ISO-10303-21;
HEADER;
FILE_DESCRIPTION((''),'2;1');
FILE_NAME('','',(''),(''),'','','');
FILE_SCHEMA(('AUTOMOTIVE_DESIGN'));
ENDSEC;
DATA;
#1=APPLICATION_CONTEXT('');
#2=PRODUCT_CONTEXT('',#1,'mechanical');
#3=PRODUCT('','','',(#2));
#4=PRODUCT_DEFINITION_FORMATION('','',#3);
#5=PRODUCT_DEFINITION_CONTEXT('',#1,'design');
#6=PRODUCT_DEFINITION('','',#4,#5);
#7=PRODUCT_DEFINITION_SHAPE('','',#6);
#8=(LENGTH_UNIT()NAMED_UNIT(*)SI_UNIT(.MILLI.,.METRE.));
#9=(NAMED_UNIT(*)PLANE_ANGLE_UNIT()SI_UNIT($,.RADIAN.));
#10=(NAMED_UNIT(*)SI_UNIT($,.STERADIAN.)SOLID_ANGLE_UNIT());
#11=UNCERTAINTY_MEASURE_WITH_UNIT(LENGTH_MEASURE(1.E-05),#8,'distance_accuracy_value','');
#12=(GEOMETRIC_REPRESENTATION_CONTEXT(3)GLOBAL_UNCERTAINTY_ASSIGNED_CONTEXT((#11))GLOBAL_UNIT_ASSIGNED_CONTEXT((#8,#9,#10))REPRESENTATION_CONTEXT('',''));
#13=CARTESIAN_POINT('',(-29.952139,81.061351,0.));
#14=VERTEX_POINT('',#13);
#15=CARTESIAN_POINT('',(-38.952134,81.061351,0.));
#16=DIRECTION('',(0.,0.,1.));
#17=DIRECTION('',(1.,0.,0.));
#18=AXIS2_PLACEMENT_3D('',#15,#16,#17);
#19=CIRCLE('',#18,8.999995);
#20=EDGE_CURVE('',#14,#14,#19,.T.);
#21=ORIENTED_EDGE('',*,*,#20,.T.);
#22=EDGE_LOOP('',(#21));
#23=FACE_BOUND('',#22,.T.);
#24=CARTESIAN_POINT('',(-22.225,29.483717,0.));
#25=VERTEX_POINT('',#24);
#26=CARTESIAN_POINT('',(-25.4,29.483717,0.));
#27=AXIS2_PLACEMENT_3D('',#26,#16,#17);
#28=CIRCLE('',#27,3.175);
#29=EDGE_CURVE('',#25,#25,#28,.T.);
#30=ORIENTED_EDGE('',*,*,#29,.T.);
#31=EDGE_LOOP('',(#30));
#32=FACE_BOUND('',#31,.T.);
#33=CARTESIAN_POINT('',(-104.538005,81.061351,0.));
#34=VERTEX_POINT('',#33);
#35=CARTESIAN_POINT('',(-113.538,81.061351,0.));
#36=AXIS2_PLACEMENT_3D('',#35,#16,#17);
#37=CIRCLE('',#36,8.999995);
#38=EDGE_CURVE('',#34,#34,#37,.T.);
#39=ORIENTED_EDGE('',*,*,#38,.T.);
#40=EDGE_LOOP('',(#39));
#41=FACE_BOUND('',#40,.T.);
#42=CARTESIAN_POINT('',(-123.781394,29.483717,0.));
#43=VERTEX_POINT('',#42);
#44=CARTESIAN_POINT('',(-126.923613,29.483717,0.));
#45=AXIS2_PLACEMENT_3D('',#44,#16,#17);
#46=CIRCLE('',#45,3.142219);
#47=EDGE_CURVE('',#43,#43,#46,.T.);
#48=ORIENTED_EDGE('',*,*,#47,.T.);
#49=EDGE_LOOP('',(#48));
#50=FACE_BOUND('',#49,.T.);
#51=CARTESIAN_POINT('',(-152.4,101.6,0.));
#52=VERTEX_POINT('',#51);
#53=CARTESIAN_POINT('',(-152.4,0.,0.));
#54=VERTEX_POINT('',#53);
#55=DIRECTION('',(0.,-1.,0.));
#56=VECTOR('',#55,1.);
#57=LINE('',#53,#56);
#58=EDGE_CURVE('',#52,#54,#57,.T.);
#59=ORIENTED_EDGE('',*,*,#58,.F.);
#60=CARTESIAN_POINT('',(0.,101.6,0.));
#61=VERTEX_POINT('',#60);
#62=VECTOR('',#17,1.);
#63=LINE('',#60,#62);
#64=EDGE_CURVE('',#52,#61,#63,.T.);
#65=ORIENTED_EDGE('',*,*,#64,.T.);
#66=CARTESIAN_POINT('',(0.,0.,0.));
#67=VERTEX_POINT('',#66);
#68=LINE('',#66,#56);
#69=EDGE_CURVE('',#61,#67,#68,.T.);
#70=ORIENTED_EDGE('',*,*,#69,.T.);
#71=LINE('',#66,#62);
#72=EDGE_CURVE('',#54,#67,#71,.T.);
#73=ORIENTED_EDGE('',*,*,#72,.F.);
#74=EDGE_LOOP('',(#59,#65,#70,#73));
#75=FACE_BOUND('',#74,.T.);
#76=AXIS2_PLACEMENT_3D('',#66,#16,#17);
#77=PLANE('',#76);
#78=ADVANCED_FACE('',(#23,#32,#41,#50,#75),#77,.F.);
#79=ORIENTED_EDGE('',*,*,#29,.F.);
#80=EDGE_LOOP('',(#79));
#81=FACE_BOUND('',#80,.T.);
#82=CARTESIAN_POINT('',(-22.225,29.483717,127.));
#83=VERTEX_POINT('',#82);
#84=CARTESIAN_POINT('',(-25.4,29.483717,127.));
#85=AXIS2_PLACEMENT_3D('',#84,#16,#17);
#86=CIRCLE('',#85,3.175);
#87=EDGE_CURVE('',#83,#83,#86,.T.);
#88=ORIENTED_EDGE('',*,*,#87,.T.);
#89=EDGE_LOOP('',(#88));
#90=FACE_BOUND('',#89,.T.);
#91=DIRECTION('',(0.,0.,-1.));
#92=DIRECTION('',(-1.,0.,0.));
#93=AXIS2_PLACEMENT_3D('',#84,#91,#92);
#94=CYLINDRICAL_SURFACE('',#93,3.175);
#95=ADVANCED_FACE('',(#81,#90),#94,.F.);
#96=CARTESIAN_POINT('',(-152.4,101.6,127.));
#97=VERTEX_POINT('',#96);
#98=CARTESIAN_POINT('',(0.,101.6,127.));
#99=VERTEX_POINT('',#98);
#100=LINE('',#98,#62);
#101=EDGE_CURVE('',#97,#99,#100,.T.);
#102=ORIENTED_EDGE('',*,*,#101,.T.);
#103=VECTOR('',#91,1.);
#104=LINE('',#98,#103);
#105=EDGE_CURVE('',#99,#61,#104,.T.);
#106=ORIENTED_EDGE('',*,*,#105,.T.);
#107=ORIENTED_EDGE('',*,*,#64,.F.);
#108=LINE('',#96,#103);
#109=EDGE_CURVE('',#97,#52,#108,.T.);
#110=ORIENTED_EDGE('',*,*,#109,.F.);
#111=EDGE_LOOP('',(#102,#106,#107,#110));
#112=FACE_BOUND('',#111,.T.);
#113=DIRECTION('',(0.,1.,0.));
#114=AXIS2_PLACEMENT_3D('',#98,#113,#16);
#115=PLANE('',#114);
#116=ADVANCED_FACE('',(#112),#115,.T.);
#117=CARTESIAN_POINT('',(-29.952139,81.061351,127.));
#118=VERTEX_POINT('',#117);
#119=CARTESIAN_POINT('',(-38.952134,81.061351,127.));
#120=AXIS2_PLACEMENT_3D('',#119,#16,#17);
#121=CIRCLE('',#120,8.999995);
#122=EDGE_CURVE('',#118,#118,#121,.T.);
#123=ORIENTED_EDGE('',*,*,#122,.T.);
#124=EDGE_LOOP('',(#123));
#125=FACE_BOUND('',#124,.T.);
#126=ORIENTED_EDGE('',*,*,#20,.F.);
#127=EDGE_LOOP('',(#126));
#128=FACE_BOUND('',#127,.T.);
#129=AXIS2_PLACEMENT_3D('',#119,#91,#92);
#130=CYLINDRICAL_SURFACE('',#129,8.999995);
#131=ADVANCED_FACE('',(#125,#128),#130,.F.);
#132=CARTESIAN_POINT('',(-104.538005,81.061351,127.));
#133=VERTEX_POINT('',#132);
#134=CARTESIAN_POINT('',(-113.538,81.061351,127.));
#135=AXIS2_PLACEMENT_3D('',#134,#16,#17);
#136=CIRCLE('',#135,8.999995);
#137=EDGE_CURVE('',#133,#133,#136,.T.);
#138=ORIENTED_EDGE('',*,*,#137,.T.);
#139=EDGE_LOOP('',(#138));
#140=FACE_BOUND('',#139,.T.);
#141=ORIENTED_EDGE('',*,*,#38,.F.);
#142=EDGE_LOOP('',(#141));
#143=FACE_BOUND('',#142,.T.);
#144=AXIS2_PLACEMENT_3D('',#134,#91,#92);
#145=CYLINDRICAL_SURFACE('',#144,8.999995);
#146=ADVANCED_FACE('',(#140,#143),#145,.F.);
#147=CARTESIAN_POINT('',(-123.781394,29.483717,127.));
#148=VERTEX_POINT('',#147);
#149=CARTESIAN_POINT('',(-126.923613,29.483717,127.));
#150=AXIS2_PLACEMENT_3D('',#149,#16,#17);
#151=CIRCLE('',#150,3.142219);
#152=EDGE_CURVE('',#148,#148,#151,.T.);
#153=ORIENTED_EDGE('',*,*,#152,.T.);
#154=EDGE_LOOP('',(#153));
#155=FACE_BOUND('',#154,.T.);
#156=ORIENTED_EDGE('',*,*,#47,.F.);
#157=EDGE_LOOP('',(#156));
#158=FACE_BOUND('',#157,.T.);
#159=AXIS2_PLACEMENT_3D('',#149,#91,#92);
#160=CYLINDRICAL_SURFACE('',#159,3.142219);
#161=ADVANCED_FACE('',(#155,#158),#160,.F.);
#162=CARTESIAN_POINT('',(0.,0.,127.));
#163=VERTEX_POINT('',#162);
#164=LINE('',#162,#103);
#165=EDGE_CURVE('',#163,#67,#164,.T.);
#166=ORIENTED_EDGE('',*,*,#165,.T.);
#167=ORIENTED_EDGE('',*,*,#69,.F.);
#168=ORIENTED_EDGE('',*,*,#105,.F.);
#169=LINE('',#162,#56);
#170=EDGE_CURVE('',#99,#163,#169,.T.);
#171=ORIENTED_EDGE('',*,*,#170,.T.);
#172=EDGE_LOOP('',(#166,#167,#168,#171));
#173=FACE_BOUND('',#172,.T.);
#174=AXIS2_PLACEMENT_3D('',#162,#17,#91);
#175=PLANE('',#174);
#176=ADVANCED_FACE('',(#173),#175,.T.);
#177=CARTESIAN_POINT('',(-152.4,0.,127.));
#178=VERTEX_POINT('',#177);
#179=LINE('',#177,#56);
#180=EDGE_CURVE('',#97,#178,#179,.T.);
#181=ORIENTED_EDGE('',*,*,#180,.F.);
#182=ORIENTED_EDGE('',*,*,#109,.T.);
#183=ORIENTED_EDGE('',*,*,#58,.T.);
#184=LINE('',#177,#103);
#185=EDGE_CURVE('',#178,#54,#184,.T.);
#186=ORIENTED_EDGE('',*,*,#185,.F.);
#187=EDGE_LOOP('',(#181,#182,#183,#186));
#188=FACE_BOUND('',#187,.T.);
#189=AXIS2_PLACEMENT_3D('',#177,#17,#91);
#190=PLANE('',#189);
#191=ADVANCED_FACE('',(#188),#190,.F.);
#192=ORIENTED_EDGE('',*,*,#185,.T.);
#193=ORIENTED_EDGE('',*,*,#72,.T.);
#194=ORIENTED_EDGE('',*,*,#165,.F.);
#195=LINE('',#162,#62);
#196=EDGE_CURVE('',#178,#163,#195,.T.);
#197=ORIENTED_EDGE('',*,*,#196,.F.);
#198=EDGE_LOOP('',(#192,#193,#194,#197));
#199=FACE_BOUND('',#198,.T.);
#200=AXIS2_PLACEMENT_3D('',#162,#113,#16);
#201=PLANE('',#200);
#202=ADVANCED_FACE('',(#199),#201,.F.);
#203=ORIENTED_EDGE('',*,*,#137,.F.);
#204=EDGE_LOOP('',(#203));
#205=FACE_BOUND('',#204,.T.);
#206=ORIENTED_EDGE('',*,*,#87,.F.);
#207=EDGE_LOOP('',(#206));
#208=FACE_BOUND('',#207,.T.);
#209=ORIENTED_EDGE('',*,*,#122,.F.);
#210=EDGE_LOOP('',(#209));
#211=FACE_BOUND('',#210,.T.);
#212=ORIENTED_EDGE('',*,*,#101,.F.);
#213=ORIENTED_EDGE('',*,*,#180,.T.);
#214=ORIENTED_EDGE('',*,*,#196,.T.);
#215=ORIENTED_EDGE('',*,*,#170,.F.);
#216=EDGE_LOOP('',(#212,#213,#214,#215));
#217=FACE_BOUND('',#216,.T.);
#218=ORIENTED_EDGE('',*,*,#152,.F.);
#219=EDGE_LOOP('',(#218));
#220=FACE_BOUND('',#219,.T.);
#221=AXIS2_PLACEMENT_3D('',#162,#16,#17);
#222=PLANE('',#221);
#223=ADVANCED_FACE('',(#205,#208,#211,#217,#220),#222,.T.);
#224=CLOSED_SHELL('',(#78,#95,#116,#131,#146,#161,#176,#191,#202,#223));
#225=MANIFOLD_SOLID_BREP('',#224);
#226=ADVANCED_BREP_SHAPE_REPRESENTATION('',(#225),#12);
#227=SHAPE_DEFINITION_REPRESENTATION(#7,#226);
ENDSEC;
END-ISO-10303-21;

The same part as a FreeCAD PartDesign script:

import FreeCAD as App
import Part
import Sketcher
from FreeCAD import Vector
Q = App.Units.Quantity

doc = App.newDocument("Part")
params = doc.addObject("Spreadsheet::Sheet", "Params")
for row, (alias, value) in enumerate([
    ("sketch1_diameter", "0.25 in"),
    ("sketch1_width", "6 in"),
    ("sketch1_height", "4 in"),
    ("pad1_length", "5 in"),
], start=1):
    params.set(f"A{row}", alias)
    params.set(f"B{row}", "=" + value)
    params.setAlias(f"B{row}", alias)

body = doc.addObject("PartDesign::Body", "Body")

sketch1 = body.newObject("Sketcher::SketchObject", "Sketch")
sketch1.AttachmentSupport = (doc.getObject("XY_Plane"), [""])
sketch1.MapMode = "FlatFace"
sketch1.addGeometry([
    Part.LineSegment(Vector(-152.4, 101.6, 0), Vector(-152.4, 0, 0)),
    Part.LineSegment(Vector(-152.4, 0, 0), Vector(0, 0, 0)),
    Part.LineSegment(Vector(0, 0, 0), Vector(0, 101.6, 0)),
    Part.LineSegment(Vector(0, 101.6, 0), Vector(-152.4, 101.6, 0)),
    Part.Circle(Vector(-126.9, 29.5, 0), Vector(0, 0, 1), 3.1),
    Part.Circle(Vector(-25.4, 29.5, 0), Vector(0, 0, 1), 3.2),
    Part.Circle(Vector(-113.5, 81.1, 0), Vector(0, 0, 1), 9),
    Part.Circle(Vector(-39, 81.1, 0), Vector(0, 0, 1), 9),
], False)
sketch1.addConstraint([
    Sketcher.Constraint("Coincident", 0, 2, 1, 1),
    Sketcher.Constraint("Coincident", 1, 2, 2, 1),
    Sketcher.Constraint("Coincident", 2, 2, 3, 1),
    Sketcher.Constraint("Coincident", 3, 2, 0, 1),
    Sketcher.Constraint("Vertical", 0),
    Sketcher.Constraint("Horizontal", 1),
    Sketcher.Constraint("Vertical", 2),
    Sketcher.Constraint("Horizontal", 3),
    Sketcher.Constraint("Coincident", 1, 2, -1, 1),
    Sketcher.Constraint("Equal", 6, 7),
    Sketcher.Constraint("Horizontal", 4, 3, 5, 3),
    Sketcher.Constraint("Horizontal", 6, 3, 7, 3),
    Sketcher.Constraint("Diameter", 5, Q("0.25 in")),
    Sketcher.Constraint("DistanceX", 1, 1, 1, 2, Q("6 in")),
    Sketcher.Constraint("DistanceY", 0, 2, 0, 1, Q("4 in")),
    Sketcher.Constraint("DistanceX", 5, 3, -1, 1, Q("1 in")),
    Sketcher.Constraint("DistanceX", 6, 3, -1, 1, Q("4.47 in")),
    Sketcher.Constraint("Diameter", 4, 6.284438),
    Sketcher.Constraint("Diameter", 6, 17.999989),
    Sketcher.Constraint("DistanceY", -1, 1, 6, 3, 81.061351),
    Sketcher.Constraint("DistanceX", 4, 3, 7, 3, 87.971479),
    Sketcher.Constraint("DistanceX", 4, 3, -1, 1, 126.923613),
    Sketcher.Constraint("DistanceY", -1, 1, 4, 3, 29.483717),
])
sketch1.setExpression("Constraints[12]", "Params.sketch1_diameter")
sketch1.setExpression("Constraints[13]", "Params.sketch1_width")
sketch1.setExpression("Constraints[14]", "Params.sketch1_height")
pad1 = body.newObject("PartDesign::Pad", "Pad")
pad1.Profile = sketch1
pad1.setExpression("Length", "Params.pad1_length")

doc.recompute()
